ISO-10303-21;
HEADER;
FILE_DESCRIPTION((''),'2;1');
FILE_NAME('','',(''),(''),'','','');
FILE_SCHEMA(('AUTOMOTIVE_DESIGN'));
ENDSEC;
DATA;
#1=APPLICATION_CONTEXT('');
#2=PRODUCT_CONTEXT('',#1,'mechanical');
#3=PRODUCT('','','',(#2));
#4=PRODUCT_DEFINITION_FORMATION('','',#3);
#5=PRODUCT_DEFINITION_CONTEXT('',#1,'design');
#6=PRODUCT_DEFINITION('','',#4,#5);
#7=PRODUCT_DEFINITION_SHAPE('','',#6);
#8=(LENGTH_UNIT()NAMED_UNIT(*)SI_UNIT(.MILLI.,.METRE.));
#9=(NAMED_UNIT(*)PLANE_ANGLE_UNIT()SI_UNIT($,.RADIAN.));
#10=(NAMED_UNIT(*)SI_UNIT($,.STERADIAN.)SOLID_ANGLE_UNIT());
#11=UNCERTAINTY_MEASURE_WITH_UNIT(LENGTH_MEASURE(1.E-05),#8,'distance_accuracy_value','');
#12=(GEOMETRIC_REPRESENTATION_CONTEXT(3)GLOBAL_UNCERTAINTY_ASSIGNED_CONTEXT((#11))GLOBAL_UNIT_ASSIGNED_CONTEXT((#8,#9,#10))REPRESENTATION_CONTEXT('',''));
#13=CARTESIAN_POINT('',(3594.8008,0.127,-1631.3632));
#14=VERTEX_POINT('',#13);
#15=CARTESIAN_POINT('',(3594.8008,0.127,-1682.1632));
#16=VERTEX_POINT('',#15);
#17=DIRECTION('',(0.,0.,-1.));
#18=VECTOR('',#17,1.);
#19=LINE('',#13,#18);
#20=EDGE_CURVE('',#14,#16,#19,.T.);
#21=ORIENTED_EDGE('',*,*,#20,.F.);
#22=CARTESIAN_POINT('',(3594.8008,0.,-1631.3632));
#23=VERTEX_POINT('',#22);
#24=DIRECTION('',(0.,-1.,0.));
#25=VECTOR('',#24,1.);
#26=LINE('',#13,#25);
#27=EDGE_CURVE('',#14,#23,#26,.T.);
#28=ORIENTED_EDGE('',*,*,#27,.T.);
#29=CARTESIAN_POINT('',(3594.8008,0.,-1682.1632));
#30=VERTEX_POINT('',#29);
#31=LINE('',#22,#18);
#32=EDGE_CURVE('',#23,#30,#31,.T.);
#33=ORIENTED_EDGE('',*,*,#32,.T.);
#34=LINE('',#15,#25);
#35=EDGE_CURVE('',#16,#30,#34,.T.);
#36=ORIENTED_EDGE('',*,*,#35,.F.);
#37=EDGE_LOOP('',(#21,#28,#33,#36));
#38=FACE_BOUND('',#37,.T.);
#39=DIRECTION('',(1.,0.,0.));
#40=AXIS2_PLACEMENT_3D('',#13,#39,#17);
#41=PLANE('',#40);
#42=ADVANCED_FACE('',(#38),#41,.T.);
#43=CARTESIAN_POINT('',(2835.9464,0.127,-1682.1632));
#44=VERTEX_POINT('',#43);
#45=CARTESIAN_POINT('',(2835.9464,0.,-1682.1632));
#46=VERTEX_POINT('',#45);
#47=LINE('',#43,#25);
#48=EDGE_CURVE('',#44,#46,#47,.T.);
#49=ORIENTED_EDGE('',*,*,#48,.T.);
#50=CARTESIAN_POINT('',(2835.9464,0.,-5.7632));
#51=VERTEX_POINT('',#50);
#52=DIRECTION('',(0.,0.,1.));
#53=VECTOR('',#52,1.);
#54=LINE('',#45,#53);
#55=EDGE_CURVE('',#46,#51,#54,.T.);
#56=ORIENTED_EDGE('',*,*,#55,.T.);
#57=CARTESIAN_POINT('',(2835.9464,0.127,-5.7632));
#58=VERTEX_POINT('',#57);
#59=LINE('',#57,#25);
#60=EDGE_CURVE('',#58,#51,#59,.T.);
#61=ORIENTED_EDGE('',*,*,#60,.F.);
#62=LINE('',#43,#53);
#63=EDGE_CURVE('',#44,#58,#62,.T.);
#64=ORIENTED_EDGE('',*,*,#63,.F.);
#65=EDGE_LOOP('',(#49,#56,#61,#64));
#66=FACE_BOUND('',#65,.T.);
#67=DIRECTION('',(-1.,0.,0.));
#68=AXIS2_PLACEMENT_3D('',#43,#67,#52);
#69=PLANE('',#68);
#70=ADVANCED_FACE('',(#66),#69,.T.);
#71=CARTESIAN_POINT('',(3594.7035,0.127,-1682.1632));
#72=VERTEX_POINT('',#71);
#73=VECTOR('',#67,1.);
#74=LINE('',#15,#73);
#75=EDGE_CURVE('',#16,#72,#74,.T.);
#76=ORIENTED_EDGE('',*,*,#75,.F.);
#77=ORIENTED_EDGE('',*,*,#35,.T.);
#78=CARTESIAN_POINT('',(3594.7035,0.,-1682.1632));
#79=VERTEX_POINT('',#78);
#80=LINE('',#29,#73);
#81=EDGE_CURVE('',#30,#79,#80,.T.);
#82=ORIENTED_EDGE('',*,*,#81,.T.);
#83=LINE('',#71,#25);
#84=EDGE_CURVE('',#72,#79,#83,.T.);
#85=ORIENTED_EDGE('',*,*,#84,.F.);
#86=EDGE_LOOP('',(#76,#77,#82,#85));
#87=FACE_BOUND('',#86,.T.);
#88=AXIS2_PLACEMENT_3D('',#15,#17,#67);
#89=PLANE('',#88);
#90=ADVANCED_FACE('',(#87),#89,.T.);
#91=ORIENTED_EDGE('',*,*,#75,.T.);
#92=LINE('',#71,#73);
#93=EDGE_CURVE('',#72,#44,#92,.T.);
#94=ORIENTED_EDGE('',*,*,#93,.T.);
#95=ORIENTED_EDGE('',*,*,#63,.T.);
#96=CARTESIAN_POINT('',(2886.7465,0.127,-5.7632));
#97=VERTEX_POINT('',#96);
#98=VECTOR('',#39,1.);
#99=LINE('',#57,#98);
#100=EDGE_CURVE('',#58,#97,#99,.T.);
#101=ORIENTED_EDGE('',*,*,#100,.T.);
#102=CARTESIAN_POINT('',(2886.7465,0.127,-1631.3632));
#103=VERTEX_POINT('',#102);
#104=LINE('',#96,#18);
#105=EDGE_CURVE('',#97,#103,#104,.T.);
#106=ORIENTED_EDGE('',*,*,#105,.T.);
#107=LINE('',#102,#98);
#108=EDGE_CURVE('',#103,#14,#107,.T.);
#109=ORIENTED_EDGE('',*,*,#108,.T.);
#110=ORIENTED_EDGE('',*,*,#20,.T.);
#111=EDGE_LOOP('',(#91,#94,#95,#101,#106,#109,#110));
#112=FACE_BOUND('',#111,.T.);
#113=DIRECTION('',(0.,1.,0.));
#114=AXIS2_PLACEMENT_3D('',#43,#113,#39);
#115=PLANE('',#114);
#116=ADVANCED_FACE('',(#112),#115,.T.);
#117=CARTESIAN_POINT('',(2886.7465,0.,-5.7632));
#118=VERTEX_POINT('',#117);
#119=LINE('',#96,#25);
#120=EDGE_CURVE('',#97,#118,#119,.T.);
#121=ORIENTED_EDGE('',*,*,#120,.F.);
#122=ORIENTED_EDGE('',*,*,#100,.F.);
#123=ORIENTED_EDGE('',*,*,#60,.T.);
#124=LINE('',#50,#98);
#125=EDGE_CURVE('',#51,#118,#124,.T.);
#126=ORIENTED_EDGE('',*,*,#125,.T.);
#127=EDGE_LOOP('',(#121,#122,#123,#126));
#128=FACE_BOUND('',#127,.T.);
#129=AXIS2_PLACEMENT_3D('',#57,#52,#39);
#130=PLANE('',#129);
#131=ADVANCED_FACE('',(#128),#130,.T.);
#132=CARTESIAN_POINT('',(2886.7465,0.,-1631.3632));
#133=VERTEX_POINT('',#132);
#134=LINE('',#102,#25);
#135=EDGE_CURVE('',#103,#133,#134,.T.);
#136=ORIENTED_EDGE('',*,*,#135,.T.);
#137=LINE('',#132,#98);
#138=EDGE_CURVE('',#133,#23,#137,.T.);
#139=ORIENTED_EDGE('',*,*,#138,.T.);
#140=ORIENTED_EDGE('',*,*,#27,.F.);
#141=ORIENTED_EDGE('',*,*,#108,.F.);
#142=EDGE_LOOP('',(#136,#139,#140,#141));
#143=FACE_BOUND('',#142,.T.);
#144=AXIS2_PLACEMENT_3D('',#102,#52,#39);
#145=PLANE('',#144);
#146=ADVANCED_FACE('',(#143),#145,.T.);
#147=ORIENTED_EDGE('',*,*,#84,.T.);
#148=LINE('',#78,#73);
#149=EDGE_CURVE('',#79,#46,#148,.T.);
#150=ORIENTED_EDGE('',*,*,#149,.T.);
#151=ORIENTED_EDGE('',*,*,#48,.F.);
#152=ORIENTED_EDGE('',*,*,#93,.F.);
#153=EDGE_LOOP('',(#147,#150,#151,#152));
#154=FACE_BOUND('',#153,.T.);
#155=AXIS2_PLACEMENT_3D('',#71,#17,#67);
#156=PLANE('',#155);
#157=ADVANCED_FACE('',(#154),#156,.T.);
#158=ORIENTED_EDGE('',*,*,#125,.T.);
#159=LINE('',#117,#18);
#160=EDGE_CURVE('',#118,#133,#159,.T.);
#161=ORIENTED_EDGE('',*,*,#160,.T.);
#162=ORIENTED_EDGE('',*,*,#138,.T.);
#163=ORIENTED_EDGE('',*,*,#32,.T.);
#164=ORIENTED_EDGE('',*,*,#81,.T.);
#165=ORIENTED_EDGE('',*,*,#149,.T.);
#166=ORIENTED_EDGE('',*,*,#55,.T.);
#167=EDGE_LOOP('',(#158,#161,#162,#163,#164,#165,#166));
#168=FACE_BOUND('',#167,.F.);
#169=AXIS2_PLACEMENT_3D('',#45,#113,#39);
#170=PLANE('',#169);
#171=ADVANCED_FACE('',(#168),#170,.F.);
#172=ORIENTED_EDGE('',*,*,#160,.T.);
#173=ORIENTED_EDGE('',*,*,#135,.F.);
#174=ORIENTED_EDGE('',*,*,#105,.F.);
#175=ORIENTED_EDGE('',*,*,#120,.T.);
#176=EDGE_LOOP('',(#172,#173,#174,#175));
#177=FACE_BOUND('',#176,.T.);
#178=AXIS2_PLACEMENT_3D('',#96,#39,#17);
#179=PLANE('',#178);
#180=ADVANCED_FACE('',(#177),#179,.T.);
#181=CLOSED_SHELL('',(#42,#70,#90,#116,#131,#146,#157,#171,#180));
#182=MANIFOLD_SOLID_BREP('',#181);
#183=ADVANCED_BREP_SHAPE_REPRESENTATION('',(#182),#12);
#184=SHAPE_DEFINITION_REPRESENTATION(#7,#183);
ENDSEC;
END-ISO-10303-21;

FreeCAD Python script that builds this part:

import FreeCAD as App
import Part
import Sketcher
Q = App.Units.Quantity


def add_polygon(sketch, points):
    """Adds a closed chain of lines whose ends are joined by coincident constraints."""
    first, n = sketch.GeometryCount, len(points)
    for a, b in zip(points, points[1:] + points[:1]):
        sketch.addGeometry(Part.LineSegment(App.Vector(*a, 0), App.Vector(*b, 0)), False)
    for i in range(n):
        sketch.addConstraint(Sketcher.Constraint("Coincident", first + i, 2, first + (i + 1) % n, 1))

doc = App.newDocument("Part")
body = doc.addObject("PartDesign::Body", "Body")

# Sketch on XZ plane
sketch1 = body.newObject("Sketcher::SketchObject", "Sketch")
sketch1.AttachmentSupport = (doc.getObject("XZ_Plane"), [""])
sketch1.MapMode = "FlatFace"
sketch1.AttachmentOffset = App.Placement(App.Vector(0, 0, -0.005 * 25.4), App.Rotation())
add_polygon(sketch1, [(2836, -1682), (2836, -6), (2887, -6), (2887, -1631), (3595, -1631), (3595, -1682)])  # lines 0-5
sketch1.addConstraint(Sketcher.Constraint("Vertical", 0))
sketch1.addConstraint(Sketcher.Constraint("Horizontal", 1))
sketch1.addConstraint(Sketcher.Constraint("Vertical", 2))
sketch1.addConstraint(Sketcher.Constraint("Horizontal", 3))
sketch1.addConstraint(Sketcher.Constraint("Vertical", 4))
sketch1.addConstraint(Sketcher.Constraint("Horizontal", 5))
sketch1.addConstraint(Sketcher.Constraint("Equal", 1, 4))
sketch1.addConstraint(Sketcher.Constraint("DistanceX", 1, 1, 1, 2, Q("2 in")))
sketch1.addConstraint(Sketcher.Constraint("DistanceY", 0, 1, 0, 2, Q("66 in")))
sketch1.addConstraint(Sketcher.Constraint("DistanceX", 3, 1, 3, 2, Q("708.0543 mm")))
sketch1.addConstraint(Sketcher.Constraint("DistanceY", 0, 2, -1, 1, Q("0.2269 in")))
sketch1.addConstraint(Sketcher.Constraint("DistanceX", -1, 1, 3, 2, Q("141.5276 in")))
pad1 = body.newObject("PartDesign::Pad", "Pad")
pad1.Profile = sketch1
pad1.Length = Q("0.005 in")

doc.recompute()
